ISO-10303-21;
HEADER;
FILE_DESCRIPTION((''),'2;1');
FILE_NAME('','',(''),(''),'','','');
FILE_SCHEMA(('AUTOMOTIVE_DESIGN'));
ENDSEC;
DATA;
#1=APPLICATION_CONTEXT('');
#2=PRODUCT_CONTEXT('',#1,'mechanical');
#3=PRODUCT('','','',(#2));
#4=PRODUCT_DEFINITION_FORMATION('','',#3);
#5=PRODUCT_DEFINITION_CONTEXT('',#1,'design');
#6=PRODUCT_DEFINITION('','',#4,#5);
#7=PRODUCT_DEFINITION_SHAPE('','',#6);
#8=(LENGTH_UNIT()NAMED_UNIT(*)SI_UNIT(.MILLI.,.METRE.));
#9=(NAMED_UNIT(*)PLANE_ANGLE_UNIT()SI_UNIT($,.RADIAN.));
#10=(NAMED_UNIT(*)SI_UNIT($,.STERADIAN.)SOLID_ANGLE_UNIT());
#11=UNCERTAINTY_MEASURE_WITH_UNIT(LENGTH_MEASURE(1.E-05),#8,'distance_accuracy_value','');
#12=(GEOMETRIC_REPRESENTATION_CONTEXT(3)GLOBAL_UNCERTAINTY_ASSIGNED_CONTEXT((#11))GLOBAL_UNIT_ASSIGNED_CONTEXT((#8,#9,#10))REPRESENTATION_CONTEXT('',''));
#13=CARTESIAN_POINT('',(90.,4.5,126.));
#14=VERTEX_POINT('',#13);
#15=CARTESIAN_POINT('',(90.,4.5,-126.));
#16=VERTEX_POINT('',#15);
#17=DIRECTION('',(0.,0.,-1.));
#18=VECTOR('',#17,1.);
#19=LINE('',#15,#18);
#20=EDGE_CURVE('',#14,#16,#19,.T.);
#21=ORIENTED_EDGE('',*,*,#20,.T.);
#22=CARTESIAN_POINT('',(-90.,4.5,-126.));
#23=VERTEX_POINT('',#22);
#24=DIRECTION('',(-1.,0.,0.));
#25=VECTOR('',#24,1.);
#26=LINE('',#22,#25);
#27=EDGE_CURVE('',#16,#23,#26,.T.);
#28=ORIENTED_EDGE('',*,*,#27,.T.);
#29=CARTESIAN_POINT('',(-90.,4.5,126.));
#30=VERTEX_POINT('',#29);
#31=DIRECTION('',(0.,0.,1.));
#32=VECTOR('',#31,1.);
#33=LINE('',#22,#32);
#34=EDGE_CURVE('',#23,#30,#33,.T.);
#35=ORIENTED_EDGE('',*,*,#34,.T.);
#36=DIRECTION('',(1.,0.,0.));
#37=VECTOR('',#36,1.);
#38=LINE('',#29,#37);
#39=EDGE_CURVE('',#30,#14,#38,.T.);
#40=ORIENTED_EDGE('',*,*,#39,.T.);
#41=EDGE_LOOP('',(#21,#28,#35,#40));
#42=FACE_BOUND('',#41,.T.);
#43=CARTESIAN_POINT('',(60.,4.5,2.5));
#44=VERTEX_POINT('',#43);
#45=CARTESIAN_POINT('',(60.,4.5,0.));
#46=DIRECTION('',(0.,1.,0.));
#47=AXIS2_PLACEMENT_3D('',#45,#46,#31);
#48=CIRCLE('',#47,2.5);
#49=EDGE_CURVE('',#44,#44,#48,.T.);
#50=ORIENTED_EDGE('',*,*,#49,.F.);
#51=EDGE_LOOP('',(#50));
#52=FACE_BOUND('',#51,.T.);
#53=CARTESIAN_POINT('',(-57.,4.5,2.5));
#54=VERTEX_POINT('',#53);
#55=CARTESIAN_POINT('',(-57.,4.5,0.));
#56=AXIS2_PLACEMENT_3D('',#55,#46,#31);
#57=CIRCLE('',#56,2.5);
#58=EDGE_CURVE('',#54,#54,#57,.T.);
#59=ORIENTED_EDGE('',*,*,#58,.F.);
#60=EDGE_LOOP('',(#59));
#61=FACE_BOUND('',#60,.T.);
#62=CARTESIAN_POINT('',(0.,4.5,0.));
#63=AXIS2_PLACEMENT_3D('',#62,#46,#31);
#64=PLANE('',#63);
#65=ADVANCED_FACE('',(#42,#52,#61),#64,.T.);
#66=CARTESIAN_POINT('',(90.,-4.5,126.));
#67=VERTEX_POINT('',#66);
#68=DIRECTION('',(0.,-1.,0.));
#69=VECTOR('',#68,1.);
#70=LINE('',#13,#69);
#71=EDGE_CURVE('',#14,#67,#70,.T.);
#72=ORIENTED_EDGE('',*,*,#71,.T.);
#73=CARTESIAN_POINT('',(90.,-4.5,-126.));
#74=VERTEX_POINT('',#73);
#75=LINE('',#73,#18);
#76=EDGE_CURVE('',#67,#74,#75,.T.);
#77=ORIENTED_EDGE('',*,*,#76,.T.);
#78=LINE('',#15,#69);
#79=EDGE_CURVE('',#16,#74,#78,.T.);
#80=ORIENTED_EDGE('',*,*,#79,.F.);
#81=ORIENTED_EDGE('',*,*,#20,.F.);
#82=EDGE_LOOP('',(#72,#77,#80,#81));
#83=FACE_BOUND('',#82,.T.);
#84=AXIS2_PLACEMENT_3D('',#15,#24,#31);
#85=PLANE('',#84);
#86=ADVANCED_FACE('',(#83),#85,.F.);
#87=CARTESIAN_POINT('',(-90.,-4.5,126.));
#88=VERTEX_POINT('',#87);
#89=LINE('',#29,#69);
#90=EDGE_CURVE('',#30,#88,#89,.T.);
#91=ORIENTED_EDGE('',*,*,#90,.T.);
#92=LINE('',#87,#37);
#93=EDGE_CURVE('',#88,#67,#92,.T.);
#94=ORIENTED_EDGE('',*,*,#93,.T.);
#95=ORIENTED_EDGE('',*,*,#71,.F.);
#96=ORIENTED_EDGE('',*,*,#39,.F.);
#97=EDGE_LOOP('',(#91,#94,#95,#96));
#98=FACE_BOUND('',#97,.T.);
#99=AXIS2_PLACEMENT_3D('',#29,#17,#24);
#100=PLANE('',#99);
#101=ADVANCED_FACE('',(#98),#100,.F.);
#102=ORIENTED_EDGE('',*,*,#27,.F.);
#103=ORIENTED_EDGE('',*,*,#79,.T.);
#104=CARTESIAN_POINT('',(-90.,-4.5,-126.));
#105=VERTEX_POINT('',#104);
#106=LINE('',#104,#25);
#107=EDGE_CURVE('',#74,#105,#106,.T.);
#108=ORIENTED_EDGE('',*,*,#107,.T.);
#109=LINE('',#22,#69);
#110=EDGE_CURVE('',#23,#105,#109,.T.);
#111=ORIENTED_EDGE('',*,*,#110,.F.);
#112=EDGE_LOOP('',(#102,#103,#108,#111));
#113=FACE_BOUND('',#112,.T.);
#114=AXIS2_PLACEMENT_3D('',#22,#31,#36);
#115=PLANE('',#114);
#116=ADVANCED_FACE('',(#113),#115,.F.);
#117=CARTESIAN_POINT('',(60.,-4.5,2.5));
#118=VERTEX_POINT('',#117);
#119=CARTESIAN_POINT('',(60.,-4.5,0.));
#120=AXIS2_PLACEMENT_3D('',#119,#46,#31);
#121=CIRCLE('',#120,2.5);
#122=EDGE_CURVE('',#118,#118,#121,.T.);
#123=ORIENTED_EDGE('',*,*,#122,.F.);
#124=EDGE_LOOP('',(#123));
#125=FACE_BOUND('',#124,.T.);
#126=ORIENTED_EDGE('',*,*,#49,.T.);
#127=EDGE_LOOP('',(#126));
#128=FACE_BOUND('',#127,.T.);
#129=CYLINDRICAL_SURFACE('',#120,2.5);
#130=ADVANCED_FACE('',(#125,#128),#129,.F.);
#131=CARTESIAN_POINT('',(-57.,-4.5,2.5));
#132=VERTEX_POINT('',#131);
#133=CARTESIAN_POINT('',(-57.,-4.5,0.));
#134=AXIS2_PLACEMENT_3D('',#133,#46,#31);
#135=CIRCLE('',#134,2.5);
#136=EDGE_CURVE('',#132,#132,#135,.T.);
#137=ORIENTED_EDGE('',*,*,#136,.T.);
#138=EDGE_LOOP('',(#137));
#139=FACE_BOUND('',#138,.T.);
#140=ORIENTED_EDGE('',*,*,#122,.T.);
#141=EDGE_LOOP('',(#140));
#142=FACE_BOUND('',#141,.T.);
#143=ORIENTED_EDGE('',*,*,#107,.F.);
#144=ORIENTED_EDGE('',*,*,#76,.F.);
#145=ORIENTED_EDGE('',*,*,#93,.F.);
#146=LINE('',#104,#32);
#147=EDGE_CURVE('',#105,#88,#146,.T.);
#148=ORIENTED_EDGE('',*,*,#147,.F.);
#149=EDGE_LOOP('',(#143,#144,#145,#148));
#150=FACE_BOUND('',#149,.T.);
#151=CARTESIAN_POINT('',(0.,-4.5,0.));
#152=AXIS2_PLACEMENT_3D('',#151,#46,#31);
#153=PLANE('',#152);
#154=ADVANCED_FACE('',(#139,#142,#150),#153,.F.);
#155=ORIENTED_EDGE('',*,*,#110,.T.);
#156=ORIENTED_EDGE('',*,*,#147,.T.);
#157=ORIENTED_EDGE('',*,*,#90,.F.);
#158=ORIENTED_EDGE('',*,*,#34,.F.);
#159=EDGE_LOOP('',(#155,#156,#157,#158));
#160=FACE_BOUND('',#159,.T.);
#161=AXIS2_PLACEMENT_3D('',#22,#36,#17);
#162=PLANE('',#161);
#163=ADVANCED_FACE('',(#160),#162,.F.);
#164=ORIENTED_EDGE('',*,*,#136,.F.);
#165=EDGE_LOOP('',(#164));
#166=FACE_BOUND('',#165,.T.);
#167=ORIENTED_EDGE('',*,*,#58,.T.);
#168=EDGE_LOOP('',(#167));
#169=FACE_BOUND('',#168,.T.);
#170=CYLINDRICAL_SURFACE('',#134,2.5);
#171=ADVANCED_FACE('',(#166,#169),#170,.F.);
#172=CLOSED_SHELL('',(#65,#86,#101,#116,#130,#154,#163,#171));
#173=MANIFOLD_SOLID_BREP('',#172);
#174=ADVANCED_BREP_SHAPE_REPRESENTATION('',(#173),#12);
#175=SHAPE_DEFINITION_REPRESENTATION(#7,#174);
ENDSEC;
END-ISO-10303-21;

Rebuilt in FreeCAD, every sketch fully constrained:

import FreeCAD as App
import Part
import Sketcher

V = App.Vector
Q = App.Units.Quantity


def add_polygon(sketch, points):
    """Adds a closed chain of lines whose ends are joined by coincident constraints."""
    first, n = sketch.GeometryCount, len(points)
    for a, b in zip(points, points[1:] + points[:1]):
        sketch.addGeometry(Part.LineSegment(App.Vector(*a, 0), App.Vector(*b, 0)), False)
    for i in range(n):
        sketch.addConstraint(Sketcher.Constraint("Coincident", first + i, 2, first + (i + 1) % n, 1))

doc = App.newDocument("Part")
body = doc.addObject("PartDesign::Body", "Body")

# Sketch on XZ plane
sketch1 = body.newObject("Sketcher::SketchObject", "Sketch")
sketch1.AttachmentSupport = (doc.getObject("XZ_Plane"), [""])
sketch1.MapMode = "FlatFace"
add_polygon(sketch1, [(-90, -126), (-90, 126), (90, 126), (90, -126)])  # lines 0-3
sketch1.addConstraint(Sketcher.Constraint("Vertical", 0))
sketch1.addConstraint(Sketcher.Constraint("Horizontal", 1))
sketch1.addConstraint(Sketcher.Constraint("Vertical", 2))
sketch1.addConstraint(Sketcher.Constraint("Horizontal", 3))
sketch1.addConstraint(Sketcher.Constraint("Symmetric", 0, 2, 2, 2, -1, 1))
sketch1.addConstraint(Sketcher.Constraint("DistanceX", 1, 1, 1, 2, Q("180 mm")))
sketch1.addConstraint(Sketcher.Constraint("DistanceY", 0, 1, 0, 2, Q("252 mm")))
pad1 = body.newObject("PartDesign::Pad", "Pad")
pad1.Profile = sketch1
pad1.Length = 9
pad1.Midplane = True

# Sketch on XZ plane
sketch2 = body.newObject("Sketcher::SketchObject", "Sketch001")
sketch2.AttachmentSupport = (doc.getObject("XZ_Plane"), [""])
sketch2.MapMode = "FlatFace"
sketch2.AttachmentOffset = App.Placement(V(0, 0, -4.5), App.Rotation())
sketch2.addGeometry(Part.Circle(V(60, 0, 0), V(0, 0, 1), 2.5), False)
sketch2.addGeometry(Part.Circle(V(-57, 0, 0), V(0, 0, 1), 2.5), False)
sketch2.addConstraint(Sketcher.Constraint("Equal", 0, 1))
sketch2.addConstraint(Sketcher.Constraint("PointOnObject", 0, 3, -1))
sketch2.addConstraint(Sketcher.Constraint("PointOnObject", 1, 3, -1))
sketch2.addConstraint(Sketcher.Constraint("Diameter", 0, Q("5 mm")))
sketch2.addConstraint(Sketcher.Constraint("DistanceX", -1, 1, 0, 3, Q("60 mm")))
sketch2.addConstraint(Sketcher.Constraint("DistanceX", 1, 3, -1, 1, Q("57 mm")))
pocket1 = body.newObject("PartDesign::Pocket", "Pocket")
pocket1.Profile = sketch2
pocket1.Type = "ThroughAll"
pocket1.Reversed = True

doc.recompute()
